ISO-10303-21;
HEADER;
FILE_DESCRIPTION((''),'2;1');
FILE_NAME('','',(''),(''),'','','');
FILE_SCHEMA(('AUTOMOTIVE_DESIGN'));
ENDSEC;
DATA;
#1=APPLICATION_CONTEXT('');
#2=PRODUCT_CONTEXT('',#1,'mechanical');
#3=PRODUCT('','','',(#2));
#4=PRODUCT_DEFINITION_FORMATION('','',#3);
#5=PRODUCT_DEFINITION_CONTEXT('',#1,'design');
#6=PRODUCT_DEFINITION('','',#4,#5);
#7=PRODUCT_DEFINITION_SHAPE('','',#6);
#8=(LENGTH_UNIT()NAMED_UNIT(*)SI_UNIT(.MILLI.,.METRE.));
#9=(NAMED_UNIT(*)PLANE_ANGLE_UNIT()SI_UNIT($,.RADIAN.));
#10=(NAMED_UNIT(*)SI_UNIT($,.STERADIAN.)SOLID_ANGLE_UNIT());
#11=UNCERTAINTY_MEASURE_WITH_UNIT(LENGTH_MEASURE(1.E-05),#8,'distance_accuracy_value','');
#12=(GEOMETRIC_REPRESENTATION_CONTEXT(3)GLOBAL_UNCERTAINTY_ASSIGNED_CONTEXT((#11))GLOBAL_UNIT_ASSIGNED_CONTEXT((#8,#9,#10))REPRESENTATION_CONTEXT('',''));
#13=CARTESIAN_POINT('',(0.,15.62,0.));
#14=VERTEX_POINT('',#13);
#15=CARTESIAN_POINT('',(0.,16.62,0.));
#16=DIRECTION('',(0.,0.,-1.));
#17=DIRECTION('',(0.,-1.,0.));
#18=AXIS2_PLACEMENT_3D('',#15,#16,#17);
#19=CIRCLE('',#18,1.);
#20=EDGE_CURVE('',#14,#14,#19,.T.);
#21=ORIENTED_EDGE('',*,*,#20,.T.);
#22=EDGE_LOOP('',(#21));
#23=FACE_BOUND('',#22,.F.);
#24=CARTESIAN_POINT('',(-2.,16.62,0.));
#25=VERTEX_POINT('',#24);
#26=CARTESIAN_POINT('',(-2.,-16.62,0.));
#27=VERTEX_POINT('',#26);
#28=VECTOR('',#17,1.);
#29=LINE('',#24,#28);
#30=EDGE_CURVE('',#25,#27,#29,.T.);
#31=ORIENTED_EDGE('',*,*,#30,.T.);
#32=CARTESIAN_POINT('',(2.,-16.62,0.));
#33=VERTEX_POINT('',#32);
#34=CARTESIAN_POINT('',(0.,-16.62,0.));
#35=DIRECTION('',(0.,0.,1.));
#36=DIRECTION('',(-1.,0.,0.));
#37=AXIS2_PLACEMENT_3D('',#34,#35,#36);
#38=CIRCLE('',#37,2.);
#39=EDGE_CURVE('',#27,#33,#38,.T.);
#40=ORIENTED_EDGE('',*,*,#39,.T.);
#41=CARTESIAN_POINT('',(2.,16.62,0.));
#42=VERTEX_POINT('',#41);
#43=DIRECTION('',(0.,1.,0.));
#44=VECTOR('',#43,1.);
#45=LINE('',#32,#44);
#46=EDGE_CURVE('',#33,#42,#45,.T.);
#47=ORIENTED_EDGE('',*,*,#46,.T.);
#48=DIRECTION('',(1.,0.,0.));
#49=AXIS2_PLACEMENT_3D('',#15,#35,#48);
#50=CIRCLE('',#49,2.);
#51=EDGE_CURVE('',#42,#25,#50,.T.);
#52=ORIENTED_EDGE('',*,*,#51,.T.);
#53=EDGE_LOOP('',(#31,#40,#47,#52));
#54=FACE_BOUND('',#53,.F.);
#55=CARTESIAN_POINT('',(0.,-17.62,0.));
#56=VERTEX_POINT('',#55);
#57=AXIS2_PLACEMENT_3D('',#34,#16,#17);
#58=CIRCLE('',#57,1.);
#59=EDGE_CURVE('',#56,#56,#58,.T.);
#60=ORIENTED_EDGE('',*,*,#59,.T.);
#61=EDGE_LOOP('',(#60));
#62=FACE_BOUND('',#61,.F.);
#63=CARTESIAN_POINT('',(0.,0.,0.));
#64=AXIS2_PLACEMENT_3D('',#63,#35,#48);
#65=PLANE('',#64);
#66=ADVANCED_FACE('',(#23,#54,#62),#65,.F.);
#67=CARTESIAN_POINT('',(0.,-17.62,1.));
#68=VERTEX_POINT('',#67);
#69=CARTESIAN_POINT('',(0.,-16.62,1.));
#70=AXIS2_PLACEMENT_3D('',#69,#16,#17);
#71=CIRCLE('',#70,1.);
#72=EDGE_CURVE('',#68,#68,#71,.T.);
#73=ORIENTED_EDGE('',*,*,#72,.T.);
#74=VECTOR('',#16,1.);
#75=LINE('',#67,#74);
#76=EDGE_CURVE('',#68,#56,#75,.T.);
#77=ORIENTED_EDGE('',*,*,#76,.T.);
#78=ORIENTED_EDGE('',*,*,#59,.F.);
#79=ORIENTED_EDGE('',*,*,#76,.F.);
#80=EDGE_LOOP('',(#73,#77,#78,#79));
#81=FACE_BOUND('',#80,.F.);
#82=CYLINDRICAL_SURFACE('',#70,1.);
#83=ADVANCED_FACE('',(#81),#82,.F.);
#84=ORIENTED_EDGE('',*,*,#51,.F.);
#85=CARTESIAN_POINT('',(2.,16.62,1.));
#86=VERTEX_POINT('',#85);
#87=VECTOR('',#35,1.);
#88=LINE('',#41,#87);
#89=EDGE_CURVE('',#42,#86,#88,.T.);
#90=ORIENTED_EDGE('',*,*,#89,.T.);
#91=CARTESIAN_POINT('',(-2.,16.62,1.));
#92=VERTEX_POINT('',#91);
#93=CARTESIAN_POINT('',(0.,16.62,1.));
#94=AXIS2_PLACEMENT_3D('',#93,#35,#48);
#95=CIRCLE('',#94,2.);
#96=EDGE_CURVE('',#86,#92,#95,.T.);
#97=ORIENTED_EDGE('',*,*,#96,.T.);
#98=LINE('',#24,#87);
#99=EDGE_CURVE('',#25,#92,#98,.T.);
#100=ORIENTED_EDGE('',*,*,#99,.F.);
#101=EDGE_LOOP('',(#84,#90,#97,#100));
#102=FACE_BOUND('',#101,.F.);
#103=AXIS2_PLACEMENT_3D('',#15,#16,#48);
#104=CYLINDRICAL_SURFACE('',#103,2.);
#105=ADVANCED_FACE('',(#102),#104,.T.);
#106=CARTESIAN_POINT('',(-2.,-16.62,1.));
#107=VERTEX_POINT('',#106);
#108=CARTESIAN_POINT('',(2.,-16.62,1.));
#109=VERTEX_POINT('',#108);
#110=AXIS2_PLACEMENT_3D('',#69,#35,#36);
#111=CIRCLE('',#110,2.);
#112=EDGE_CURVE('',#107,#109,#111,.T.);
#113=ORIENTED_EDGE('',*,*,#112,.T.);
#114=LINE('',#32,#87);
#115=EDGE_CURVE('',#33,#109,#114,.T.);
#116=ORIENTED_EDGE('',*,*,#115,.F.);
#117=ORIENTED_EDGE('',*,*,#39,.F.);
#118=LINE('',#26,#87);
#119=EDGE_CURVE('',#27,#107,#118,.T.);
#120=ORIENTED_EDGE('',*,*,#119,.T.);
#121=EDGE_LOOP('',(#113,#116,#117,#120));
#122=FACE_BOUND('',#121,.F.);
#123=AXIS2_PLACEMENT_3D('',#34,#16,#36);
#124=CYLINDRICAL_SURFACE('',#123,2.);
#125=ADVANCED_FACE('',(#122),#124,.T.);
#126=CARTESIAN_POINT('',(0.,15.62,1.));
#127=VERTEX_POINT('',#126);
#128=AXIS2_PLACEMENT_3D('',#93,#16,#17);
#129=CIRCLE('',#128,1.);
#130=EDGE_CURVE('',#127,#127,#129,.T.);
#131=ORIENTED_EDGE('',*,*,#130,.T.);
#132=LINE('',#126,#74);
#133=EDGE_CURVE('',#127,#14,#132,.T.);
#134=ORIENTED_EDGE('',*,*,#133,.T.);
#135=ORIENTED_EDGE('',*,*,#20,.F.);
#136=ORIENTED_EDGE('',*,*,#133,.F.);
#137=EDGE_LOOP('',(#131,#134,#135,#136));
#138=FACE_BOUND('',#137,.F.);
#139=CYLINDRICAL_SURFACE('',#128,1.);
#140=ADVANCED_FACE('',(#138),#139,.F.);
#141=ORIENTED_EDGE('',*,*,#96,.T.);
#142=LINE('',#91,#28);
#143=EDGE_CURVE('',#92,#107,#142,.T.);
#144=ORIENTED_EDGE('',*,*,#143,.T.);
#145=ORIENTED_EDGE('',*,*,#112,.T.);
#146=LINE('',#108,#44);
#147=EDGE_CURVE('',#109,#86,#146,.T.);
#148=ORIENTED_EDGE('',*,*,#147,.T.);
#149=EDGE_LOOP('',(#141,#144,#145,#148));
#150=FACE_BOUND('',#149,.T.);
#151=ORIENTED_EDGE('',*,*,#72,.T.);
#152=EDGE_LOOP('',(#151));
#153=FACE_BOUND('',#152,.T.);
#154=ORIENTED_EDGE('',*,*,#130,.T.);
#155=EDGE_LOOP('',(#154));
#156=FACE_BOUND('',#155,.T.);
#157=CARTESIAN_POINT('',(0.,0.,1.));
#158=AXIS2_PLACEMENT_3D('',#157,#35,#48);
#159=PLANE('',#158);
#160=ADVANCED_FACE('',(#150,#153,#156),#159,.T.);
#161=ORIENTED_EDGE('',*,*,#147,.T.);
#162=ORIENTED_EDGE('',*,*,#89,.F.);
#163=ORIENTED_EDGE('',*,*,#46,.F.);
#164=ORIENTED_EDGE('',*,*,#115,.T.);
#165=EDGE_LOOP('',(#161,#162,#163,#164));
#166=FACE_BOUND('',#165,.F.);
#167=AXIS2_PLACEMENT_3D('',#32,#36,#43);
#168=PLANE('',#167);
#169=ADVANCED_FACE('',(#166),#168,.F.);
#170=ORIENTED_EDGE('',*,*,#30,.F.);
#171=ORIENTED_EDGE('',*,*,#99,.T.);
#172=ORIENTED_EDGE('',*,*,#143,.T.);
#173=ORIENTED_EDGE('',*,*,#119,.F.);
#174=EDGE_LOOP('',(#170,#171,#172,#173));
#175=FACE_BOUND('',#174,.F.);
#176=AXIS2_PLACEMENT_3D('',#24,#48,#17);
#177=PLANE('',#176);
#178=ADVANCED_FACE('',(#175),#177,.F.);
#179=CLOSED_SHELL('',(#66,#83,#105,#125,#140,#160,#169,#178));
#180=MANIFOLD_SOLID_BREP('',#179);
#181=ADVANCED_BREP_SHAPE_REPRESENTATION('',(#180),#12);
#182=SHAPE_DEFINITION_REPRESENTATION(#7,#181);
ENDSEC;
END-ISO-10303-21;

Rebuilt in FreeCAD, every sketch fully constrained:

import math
import FreeCAD as App
import Part
import Sketcher

V = App.Vector
Q = App.Units.Quantity

doc = App.newDocument("Part")
body = doc.addObject("PartDesign::Body", "Body")
body.AllowCompound = True

sketch1 = body.newObject("Sketcher::SketchObject", "Sketch")
sketch1.AttachmentSupport = (doc.getObject("XY_Plane"), [""])
sketch1.MapMode = "FlatFace"
sketch1.addGeometry(Part.ArcOfCircle(Part.Circle(V(0, -16.62, 0), V(0, 0, 1), 2), math.radians(180), math.radians(360)), False)
sketch1.addGeometry(Part.LineSegment(V(2, -16.62, 0), V(2, 16.62, 0)), False)
sketch1.addGeometry(Part.ArcOfCircle(Part.Circle(V(0, 16.62, 0), V(0, 0, 1), 2), math.radians(0), math.radians(180)), False)
sketch1.addGeometry(Part.LineSegment(V(-2, 16.62, 0), V(-2, -16.62, 0)), False)
sketch1.addConstraint(Sketcher.Constraint("Tangent", 0, 2, 1, 1))
sketch1.addConstraint(Sketcher.Constraint("Tangent", 1, 2, 2, 1))
sketch1.addConstraint(Sketcher.Constraint("Tangent", 2, 2, 3, 1))
sketch1.addConstraint(Sketcher.Constraint("Tangent", 3, 2, 0, 1))
sketch1.addConstraint(Sketcher.Constraint("Vertical", 1))
sketch1.addConstraint(Sketcher.Constraint("Vertical", 3))
sketch1.addConstraint(Sketcher.Constraint("Symmetric", 0, 3, 2, 3, -1, 1))
sketch1.addConstraint(Sketcher.Constraint("Radius", 0, Q("2 mm")))
sketch1.addConstraint(Sketcher.Constraint("DistanceY", 1, 1, 1, 2, Q("33.24 mm")))
pad1 = body.newObject("PartDesign::Pad", "Pad")
pad1.Profile = sketch1
pad1.Length = 1

sketch2 = body.newObject("Sketcher::SketchObject", "Sketch001")
sketch2.AttachmentSupport = (doc.getObject("XY_Plane"), [""])
sketch2.MapMode = "FlatFace"
sketch2.AttachmentOffset = App.Placement(V(0, 0, 1), App.Rotation())
sketch2.addGeometry(Part.Circle(V(0, 16.62, 0), V(0, 0, 1), 0.75), False)
sketch2.addGeometry(Part.Circle(V(0, -16.62, 0), V(0, 0, 1), 0.75), False)
sketch2.addConstraint(Sketcher.Constraint("Equal", 0, 1))
sketch2.addConstraint(Sketcher.Constraint("Symmetric", 0, 3, 1, 3, -1, 1))
sketch2.addConstraint(Sketcher.Constraint("PointOnObject", 0, 3, -2))
sketch2.addConstraint(Sketcher.Constraint("Diameter", 0, Q("1.5 mm")))
sketch2.addConstraint(Sketcher.Constraint("DistanceY", -1, 1, 0, 3, Q("16.62 mm")))
pad2 = body.newObject("PartDesign::Pad", "Pad001")
pad2.Profile = sketch2
pad2.Length = 1

sketch3 = body.newObject("Sketcher::SketchObject", "Sketch002")
sketch3.AttachmentSupport = (doc.getObject("XY_Plane"), [""])
sketch3.MapMode = "FlatFace"
sketch3.AttachmentOffset = App.Placement(V(0, 0, 1), App.Rotation())
sketch3.addGeometry(Part.Circle(V(0, -16.62, 0), V(0, 0, 1), 1), False)
sketch3.addGeometry(Part.Circle(V(0, 16.62, 0), V(0, 0, 1), 1), False)
sketch3.addConstraint(Sketcher.Constraint("Equal", 0, 1))
sketch3.addConstraint(Sketcher.Constraint("Symmetric", 0, 3, 1, 3, -1, 1))
sketch3.addConstraint(Sketcher.Constraint("PointOnObject", 0, 3, -2))
sketch3.addConstraint(Sketcher.Constraint("Diameter", 0, Q("2 mm")))
sketch3.addConstraint(Sketcher.Constraint("DistanceY", 0, 3, -1, 1, Q("16.62 mm")))
doc.recompute()
hole = body.newObject("PartDesign::Hole", "Hole")
hole.Profile = sketch3
hole.ThreadType = "None"
hole.Diameter = 2
hole.DepthType = "ThroughAll"

sketch4 = body.newObject("Sketcher::SketchObject", "Sketch003")
sketch4.AttachmentSupport = (doc.getObject("XY_Plane"), [""])
sketch4.MapMode = "FlatFace"
sketch4.AttachmentOffset = App.Placement(V(0, 0, 1), App.Rotation())
sketch4.addGeometry(Part.Circle(V(0, -16.62, 0), V(0, 0, 1), 1), False)
sketch4.addGeometry(Part.Circle(V(0, 16.62, 0), V(0, 0, 1), 1), False)
sketch4.addConstraint(Sketcher.Constraint("Equal", 0, 1))
sketch4.addConstraint(Sketcher.Constraint("Symmetric", 0, 3, 1, 3, -1, 1))
sketch4.addConstraint(Sketcher.Constraint("PointOnObject", 0, 3, -2))
sketch4.addConstraint(Sketcher.Constraint("Diameter", 0, Q("2 mm")))
sketch4.addConstraint(Sketcher.Constraint("DistanceY", 0, 3, -1, 1, Q("16.62 mm")))
doc.recompute()
hole2 = body.newObject("PartDesign::Hole", "Hole001")
hole2.Profile = sketch4
hole2.ThreadType = "None"
hole2.Diameter = 2
hole2.DepthType = "ThroughAll"
hole2.Reversed = True

doc.recompute()
